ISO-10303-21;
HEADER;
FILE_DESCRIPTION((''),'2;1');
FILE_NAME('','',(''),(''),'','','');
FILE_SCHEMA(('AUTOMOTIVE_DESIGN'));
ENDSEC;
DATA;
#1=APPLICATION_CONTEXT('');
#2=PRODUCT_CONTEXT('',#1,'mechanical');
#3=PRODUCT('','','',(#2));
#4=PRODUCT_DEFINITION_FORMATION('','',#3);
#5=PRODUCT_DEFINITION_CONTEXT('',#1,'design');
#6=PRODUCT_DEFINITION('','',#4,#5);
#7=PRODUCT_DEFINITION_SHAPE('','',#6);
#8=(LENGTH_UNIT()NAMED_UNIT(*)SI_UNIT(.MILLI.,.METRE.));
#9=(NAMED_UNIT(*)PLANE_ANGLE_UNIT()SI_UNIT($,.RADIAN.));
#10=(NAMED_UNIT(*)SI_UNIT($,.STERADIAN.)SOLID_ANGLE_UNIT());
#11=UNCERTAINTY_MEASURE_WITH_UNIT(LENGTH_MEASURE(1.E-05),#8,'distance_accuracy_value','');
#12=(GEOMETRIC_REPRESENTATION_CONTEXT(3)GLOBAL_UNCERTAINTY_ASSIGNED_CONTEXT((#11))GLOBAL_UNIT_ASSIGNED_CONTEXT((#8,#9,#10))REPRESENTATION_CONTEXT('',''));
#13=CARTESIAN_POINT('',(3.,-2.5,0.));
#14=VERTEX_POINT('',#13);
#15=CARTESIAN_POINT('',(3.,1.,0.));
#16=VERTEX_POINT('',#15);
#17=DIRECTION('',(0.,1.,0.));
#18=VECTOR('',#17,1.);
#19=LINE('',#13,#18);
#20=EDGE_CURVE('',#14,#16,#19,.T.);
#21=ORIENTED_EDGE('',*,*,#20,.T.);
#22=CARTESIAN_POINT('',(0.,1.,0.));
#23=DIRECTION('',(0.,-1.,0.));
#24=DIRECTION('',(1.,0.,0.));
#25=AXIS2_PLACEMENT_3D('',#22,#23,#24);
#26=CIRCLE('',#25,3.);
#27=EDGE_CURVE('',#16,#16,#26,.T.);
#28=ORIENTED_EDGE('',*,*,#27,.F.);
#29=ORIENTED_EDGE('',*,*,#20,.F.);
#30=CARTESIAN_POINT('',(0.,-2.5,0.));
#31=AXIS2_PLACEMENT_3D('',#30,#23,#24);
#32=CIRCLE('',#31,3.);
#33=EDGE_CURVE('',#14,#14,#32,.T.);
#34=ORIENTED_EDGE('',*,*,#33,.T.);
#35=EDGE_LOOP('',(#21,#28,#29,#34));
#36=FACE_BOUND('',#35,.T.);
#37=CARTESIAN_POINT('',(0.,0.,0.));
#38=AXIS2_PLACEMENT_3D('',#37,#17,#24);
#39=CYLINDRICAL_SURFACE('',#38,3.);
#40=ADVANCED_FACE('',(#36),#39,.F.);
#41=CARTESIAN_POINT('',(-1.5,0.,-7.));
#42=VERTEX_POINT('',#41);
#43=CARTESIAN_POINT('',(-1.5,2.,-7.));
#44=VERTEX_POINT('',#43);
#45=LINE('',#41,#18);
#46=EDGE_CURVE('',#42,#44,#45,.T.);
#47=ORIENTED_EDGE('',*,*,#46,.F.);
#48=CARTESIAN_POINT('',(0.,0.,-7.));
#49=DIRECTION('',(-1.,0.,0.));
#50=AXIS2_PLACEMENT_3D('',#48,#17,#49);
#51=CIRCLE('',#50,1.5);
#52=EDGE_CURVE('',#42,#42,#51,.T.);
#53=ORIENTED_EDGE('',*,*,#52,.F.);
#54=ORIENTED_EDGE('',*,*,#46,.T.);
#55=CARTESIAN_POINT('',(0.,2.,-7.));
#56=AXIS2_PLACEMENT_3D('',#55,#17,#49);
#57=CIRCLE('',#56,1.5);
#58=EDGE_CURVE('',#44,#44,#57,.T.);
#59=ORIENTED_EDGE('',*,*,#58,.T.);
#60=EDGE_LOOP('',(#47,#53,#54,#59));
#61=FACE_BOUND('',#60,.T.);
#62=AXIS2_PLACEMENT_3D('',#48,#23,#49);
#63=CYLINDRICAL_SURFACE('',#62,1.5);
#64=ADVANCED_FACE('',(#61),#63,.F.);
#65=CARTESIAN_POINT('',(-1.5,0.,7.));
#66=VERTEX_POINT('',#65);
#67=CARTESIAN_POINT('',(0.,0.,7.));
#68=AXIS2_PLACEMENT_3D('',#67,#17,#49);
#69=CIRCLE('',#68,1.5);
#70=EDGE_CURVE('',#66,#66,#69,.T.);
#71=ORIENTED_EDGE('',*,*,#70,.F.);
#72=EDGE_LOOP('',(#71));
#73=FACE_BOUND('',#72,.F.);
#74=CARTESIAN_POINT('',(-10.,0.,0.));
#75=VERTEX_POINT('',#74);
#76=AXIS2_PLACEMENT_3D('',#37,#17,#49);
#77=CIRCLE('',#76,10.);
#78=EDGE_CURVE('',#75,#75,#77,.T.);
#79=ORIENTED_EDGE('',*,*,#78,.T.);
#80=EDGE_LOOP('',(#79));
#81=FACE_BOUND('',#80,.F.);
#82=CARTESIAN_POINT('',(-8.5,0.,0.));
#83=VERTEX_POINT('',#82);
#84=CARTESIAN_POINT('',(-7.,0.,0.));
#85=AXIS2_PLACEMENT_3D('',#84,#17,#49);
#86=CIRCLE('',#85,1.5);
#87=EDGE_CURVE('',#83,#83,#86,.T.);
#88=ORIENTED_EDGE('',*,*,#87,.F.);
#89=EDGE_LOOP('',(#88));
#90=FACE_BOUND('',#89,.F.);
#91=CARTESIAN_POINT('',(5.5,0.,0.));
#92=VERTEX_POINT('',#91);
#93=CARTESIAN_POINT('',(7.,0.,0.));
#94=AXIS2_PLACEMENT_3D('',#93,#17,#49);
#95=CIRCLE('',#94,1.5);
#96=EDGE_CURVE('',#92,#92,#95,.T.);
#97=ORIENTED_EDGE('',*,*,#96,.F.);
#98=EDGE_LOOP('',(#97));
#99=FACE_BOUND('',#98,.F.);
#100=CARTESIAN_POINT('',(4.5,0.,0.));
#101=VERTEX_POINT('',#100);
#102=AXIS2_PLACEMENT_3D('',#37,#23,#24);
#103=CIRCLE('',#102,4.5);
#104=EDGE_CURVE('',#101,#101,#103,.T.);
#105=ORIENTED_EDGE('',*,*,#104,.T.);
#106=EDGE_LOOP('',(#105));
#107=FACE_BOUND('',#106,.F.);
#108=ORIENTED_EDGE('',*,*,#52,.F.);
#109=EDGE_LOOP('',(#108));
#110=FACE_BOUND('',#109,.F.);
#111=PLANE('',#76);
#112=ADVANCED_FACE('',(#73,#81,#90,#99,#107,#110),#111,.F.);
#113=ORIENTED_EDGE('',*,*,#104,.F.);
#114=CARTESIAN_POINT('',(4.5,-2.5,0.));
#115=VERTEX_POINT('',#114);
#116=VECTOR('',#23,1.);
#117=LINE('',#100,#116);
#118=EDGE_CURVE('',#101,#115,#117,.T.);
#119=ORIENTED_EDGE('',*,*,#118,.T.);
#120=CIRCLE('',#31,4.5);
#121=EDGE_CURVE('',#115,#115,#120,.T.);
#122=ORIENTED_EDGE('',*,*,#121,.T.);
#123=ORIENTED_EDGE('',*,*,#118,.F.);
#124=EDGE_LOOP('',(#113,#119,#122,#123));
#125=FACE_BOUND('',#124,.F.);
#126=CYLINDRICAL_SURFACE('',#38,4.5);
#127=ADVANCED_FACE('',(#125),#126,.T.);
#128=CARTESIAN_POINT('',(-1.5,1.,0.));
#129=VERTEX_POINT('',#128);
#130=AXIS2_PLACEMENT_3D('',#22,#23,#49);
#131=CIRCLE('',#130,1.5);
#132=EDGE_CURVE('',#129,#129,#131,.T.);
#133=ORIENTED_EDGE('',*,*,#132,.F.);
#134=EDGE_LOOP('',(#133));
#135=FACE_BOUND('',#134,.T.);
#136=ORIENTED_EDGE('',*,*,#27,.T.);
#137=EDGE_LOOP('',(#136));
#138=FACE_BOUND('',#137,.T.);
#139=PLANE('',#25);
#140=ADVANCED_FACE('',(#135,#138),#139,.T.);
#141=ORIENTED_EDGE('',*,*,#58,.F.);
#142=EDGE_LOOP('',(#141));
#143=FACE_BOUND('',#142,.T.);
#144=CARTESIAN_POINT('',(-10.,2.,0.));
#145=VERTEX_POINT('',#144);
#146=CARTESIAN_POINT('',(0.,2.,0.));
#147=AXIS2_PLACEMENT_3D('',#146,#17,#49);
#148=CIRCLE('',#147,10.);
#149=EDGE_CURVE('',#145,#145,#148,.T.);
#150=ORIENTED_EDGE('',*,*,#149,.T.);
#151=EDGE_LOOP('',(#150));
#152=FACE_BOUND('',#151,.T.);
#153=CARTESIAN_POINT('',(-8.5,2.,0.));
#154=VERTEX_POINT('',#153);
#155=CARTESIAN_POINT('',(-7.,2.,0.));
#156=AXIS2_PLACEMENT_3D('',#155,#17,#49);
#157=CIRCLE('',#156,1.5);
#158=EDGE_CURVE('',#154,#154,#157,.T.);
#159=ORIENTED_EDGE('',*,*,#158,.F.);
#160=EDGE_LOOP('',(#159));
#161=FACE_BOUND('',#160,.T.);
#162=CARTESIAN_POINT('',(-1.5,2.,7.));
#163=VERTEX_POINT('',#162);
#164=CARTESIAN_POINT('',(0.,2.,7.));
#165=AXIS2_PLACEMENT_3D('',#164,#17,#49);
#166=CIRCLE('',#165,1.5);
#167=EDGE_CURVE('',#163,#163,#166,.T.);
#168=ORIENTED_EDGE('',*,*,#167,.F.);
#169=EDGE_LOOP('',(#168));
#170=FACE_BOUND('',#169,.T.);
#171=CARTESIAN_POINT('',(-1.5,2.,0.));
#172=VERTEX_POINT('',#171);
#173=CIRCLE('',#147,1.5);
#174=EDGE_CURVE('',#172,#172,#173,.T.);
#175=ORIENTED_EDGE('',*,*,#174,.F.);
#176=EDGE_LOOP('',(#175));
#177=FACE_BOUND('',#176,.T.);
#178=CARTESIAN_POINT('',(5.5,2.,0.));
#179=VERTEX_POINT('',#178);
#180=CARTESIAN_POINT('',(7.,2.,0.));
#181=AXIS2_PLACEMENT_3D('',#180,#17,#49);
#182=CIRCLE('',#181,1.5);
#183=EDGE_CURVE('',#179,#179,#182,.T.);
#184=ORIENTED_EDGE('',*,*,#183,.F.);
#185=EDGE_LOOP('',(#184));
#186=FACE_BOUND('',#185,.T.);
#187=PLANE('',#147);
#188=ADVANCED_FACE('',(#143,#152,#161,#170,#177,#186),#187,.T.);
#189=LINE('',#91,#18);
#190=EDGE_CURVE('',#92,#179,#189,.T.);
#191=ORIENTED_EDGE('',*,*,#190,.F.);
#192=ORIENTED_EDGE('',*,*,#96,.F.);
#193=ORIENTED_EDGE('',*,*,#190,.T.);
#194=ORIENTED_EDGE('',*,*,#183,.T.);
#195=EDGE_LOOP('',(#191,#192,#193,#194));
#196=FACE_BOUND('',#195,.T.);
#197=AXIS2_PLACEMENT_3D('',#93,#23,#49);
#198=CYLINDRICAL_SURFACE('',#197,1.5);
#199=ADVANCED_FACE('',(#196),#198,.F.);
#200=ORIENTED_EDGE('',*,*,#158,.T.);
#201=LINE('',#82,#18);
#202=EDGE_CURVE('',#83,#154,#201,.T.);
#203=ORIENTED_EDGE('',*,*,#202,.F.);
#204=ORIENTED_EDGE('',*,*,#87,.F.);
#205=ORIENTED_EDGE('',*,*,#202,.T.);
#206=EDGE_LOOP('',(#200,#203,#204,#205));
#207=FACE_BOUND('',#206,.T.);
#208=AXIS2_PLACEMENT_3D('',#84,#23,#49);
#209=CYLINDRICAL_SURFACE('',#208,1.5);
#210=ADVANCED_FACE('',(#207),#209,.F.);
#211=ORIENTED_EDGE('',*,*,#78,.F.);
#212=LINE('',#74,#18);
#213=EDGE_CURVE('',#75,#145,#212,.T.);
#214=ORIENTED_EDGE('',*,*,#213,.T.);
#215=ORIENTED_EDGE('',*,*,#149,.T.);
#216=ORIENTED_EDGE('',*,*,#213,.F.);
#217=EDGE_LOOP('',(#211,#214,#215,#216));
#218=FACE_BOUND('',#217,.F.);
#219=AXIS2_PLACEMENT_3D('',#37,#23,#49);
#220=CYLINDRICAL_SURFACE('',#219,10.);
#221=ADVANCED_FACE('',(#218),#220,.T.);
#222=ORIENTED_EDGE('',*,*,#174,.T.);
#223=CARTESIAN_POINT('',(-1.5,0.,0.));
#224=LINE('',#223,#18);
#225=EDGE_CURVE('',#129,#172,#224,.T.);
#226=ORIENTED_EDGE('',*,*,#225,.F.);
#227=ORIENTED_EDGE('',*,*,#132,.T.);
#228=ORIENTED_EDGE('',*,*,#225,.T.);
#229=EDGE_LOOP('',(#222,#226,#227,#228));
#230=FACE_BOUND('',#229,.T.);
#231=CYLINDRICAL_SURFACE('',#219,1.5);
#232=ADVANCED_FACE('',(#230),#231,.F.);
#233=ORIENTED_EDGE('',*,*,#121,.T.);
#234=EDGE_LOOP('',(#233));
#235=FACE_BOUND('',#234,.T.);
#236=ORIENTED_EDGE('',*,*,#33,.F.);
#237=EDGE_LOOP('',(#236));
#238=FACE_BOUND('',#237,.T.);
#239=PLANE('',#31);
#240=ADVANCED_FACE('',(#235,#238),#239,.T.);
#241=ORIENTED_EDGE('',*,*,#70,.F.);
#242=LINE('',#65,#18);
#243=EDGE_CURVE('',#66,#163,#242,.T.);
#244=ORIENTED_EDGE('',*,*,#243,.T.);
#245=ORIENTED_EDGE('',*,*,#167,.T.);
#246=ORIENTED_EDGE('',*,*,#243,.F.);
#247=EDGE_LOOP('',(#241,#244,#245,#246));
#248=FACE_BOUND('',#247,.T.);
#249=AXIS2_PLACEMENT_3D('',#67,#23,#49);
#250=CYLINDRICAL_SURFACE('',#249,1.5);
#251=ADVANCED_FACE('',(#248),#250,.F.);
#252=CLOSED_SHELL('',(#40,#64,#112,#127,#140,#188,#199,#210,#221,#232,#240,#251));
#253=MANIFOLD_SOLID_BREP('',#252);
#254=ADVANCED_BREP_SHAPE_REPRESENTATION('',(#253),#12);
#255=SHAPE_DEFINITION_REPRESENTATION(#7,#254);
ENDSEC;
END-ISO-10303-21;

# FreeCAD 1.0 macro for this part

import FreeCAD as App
import Part
import Sketcher
from FreeCAD import Vector
Q = App.Units.Quantity

doc = App.newDocument("Part")
body = doc.addObject("PartDesign::Body", "Body")

# Sketch on XZ plane
sketch1 = body.newObject("Sketcher::SketchObject", "Sketch")
sketch1.AttachmentSupport = (doc.getObject("XZ_Plane"), [""])
sketch1.MapMode = "FlatFace"
sketch1.addGeometry(Part.Circle(Vector(0, 0, 0), Vector(0, 0, 1), 10), False)
sketch1.addGeometry(Part.Circle(Vector(0, -7, 0), Vector(0, 0, 1), 1.5), False)
sketch1.addGeometry(Part.Circle(Vector(7, 0, 0), Vector(0, 0, 1), 1.5), False)
sketch1.addGeometry(Part.Circle(Vector(0, 0, 0), Vector(0, 0, 1), 1.5), False)
sketch1.addGeometry(Part.Circle(Vector(-7, 0, 0), Vector(0, 0, 1), 1.5), False)
sketch1.addGeometry(Part.Circle(Vector(0, 7, 0), Vector(0, 0, 1), 1.5), False)
sketch1.addConstraint(Sketcher.Constraint("Coincident", 0, 3, -1, 1))
sketch1.addConstraint(Sketcher.Constraint("Coincident", 3, 3, -1, 1))
sketch1.addConstraint(Sketcher.Constraint("Equal", 1, 2))
sketch1.addConstraint(Sketcher.Constraint("Equal", 2, 3))
sketch1.addConstraint(Sketcher.Constraint("Equal", 3, 4))
sketch1.addConstraint(Sketcher.Constraint("Equal", 4, 5))
sketch1.addConstraint(Sketcher.Constraint("Symmetric", 2, 3, 4, 3, -1, 1))
sketch1.addConstraint(Sketcher.Constraint("Symmetric", 1, 3, 5, 3, -1, 1))
sketch1.addConstraint(Sketcher.Constraint("PointOnObject", 1, 3, -2))
sketch1.addConstraint(Sketcher.Constraint("PointOnObject", 2, 3, -1))
sketch1.addConstraint(Sketcher.Constraint("Diameter", 0, Q("20 mm")))
sketch1.addConstraint(Sketcher.Constraint("Diameter", 1, Q("3 mm")))
sketch1.addConstraint(Sketcher.Constraint("DistanceY", 1, 3, -1, 1, Q("7 mm")))
sketch1.addConstraint(Sketcher.Constraint("DistanceX", -1, 1, 2, 3, Q("7 mm")))
pad1 = body.newObject("PartDesign::Pad", "Pad")
pad1.Profile = sketch1
pad1.Length = 2
pad1.Reversed = True

# Sketch on XZ plane
sketch2 = body.newObject("Sketcher::SketchObject", "Sketch001")
sketch2.AttachmentSupport = (doc.getObject("XZ_Plane"), [""])
sketch2.MapMode = "FlatFace"
sketch2.addGeometry(Part.Circle(Vector(0, 0, 0), Vector(0, 0, 1), 4.5), False)
sketch2.addGeometry(Part.Circle(Vector(0, 0, 0), Vector(0, 0, 1), 3), False)
sketch2.addConstraint(Sketcher.Constraint("Coincident", 0, 3, -1, 1))
sketch2.addConstraint(Sketcher.Constraint("Coincident", 1, 3, -1, 1))
sketch2.addConstraint(Sketcher.Constraint("Diameter", 0, Q("9 mm")))
sketch2.addConstraint(Sketcher.Constraint("Diameter", 1, Q("6 mm")))
pad2 = body.newObject("PartDesign::Pad", "Pad001")
pad2.Profile = sketch2
pad2.Length = 2.5

# Sketch on XZ plane
sketch3 = body.newObject("Sketcher::SketchObject", "Sketch002")
sketch3.AttachmentSupport = (doc.getObject("XZ_Plane"), [""])
sketch3.MapMode = "FlatFace"
sketch3.addGeometry(Part.Circle(Vector(0, 0, 0), Vector(0, 0, 1), 3), False)
sketch3.addGeometry(Part.Circle(Vector(0, 0, 0), Vector(0, 0, 1), 1.5), False)
sketch3.addConstraint(Sketcher.Constraint("Coincident", 0, 3, -1, 1))
sketch3.addConstraint(Sketcher.Constraint("Coincident", 1, 3, -1, 1))
sketch3.addConstraint(Sketcher.Constraint("Diameter", 0, Q("6 mm")))
sketch3.addConstraint(Sketcher.Constraint("Diameter", 1, Q("3 mm")))
pocket1 = body.newObject("PartDesign::Pocket", "Pocket")
pocket1.Profile = sketch3
pocket1.Length = 1

doc.recompute()
